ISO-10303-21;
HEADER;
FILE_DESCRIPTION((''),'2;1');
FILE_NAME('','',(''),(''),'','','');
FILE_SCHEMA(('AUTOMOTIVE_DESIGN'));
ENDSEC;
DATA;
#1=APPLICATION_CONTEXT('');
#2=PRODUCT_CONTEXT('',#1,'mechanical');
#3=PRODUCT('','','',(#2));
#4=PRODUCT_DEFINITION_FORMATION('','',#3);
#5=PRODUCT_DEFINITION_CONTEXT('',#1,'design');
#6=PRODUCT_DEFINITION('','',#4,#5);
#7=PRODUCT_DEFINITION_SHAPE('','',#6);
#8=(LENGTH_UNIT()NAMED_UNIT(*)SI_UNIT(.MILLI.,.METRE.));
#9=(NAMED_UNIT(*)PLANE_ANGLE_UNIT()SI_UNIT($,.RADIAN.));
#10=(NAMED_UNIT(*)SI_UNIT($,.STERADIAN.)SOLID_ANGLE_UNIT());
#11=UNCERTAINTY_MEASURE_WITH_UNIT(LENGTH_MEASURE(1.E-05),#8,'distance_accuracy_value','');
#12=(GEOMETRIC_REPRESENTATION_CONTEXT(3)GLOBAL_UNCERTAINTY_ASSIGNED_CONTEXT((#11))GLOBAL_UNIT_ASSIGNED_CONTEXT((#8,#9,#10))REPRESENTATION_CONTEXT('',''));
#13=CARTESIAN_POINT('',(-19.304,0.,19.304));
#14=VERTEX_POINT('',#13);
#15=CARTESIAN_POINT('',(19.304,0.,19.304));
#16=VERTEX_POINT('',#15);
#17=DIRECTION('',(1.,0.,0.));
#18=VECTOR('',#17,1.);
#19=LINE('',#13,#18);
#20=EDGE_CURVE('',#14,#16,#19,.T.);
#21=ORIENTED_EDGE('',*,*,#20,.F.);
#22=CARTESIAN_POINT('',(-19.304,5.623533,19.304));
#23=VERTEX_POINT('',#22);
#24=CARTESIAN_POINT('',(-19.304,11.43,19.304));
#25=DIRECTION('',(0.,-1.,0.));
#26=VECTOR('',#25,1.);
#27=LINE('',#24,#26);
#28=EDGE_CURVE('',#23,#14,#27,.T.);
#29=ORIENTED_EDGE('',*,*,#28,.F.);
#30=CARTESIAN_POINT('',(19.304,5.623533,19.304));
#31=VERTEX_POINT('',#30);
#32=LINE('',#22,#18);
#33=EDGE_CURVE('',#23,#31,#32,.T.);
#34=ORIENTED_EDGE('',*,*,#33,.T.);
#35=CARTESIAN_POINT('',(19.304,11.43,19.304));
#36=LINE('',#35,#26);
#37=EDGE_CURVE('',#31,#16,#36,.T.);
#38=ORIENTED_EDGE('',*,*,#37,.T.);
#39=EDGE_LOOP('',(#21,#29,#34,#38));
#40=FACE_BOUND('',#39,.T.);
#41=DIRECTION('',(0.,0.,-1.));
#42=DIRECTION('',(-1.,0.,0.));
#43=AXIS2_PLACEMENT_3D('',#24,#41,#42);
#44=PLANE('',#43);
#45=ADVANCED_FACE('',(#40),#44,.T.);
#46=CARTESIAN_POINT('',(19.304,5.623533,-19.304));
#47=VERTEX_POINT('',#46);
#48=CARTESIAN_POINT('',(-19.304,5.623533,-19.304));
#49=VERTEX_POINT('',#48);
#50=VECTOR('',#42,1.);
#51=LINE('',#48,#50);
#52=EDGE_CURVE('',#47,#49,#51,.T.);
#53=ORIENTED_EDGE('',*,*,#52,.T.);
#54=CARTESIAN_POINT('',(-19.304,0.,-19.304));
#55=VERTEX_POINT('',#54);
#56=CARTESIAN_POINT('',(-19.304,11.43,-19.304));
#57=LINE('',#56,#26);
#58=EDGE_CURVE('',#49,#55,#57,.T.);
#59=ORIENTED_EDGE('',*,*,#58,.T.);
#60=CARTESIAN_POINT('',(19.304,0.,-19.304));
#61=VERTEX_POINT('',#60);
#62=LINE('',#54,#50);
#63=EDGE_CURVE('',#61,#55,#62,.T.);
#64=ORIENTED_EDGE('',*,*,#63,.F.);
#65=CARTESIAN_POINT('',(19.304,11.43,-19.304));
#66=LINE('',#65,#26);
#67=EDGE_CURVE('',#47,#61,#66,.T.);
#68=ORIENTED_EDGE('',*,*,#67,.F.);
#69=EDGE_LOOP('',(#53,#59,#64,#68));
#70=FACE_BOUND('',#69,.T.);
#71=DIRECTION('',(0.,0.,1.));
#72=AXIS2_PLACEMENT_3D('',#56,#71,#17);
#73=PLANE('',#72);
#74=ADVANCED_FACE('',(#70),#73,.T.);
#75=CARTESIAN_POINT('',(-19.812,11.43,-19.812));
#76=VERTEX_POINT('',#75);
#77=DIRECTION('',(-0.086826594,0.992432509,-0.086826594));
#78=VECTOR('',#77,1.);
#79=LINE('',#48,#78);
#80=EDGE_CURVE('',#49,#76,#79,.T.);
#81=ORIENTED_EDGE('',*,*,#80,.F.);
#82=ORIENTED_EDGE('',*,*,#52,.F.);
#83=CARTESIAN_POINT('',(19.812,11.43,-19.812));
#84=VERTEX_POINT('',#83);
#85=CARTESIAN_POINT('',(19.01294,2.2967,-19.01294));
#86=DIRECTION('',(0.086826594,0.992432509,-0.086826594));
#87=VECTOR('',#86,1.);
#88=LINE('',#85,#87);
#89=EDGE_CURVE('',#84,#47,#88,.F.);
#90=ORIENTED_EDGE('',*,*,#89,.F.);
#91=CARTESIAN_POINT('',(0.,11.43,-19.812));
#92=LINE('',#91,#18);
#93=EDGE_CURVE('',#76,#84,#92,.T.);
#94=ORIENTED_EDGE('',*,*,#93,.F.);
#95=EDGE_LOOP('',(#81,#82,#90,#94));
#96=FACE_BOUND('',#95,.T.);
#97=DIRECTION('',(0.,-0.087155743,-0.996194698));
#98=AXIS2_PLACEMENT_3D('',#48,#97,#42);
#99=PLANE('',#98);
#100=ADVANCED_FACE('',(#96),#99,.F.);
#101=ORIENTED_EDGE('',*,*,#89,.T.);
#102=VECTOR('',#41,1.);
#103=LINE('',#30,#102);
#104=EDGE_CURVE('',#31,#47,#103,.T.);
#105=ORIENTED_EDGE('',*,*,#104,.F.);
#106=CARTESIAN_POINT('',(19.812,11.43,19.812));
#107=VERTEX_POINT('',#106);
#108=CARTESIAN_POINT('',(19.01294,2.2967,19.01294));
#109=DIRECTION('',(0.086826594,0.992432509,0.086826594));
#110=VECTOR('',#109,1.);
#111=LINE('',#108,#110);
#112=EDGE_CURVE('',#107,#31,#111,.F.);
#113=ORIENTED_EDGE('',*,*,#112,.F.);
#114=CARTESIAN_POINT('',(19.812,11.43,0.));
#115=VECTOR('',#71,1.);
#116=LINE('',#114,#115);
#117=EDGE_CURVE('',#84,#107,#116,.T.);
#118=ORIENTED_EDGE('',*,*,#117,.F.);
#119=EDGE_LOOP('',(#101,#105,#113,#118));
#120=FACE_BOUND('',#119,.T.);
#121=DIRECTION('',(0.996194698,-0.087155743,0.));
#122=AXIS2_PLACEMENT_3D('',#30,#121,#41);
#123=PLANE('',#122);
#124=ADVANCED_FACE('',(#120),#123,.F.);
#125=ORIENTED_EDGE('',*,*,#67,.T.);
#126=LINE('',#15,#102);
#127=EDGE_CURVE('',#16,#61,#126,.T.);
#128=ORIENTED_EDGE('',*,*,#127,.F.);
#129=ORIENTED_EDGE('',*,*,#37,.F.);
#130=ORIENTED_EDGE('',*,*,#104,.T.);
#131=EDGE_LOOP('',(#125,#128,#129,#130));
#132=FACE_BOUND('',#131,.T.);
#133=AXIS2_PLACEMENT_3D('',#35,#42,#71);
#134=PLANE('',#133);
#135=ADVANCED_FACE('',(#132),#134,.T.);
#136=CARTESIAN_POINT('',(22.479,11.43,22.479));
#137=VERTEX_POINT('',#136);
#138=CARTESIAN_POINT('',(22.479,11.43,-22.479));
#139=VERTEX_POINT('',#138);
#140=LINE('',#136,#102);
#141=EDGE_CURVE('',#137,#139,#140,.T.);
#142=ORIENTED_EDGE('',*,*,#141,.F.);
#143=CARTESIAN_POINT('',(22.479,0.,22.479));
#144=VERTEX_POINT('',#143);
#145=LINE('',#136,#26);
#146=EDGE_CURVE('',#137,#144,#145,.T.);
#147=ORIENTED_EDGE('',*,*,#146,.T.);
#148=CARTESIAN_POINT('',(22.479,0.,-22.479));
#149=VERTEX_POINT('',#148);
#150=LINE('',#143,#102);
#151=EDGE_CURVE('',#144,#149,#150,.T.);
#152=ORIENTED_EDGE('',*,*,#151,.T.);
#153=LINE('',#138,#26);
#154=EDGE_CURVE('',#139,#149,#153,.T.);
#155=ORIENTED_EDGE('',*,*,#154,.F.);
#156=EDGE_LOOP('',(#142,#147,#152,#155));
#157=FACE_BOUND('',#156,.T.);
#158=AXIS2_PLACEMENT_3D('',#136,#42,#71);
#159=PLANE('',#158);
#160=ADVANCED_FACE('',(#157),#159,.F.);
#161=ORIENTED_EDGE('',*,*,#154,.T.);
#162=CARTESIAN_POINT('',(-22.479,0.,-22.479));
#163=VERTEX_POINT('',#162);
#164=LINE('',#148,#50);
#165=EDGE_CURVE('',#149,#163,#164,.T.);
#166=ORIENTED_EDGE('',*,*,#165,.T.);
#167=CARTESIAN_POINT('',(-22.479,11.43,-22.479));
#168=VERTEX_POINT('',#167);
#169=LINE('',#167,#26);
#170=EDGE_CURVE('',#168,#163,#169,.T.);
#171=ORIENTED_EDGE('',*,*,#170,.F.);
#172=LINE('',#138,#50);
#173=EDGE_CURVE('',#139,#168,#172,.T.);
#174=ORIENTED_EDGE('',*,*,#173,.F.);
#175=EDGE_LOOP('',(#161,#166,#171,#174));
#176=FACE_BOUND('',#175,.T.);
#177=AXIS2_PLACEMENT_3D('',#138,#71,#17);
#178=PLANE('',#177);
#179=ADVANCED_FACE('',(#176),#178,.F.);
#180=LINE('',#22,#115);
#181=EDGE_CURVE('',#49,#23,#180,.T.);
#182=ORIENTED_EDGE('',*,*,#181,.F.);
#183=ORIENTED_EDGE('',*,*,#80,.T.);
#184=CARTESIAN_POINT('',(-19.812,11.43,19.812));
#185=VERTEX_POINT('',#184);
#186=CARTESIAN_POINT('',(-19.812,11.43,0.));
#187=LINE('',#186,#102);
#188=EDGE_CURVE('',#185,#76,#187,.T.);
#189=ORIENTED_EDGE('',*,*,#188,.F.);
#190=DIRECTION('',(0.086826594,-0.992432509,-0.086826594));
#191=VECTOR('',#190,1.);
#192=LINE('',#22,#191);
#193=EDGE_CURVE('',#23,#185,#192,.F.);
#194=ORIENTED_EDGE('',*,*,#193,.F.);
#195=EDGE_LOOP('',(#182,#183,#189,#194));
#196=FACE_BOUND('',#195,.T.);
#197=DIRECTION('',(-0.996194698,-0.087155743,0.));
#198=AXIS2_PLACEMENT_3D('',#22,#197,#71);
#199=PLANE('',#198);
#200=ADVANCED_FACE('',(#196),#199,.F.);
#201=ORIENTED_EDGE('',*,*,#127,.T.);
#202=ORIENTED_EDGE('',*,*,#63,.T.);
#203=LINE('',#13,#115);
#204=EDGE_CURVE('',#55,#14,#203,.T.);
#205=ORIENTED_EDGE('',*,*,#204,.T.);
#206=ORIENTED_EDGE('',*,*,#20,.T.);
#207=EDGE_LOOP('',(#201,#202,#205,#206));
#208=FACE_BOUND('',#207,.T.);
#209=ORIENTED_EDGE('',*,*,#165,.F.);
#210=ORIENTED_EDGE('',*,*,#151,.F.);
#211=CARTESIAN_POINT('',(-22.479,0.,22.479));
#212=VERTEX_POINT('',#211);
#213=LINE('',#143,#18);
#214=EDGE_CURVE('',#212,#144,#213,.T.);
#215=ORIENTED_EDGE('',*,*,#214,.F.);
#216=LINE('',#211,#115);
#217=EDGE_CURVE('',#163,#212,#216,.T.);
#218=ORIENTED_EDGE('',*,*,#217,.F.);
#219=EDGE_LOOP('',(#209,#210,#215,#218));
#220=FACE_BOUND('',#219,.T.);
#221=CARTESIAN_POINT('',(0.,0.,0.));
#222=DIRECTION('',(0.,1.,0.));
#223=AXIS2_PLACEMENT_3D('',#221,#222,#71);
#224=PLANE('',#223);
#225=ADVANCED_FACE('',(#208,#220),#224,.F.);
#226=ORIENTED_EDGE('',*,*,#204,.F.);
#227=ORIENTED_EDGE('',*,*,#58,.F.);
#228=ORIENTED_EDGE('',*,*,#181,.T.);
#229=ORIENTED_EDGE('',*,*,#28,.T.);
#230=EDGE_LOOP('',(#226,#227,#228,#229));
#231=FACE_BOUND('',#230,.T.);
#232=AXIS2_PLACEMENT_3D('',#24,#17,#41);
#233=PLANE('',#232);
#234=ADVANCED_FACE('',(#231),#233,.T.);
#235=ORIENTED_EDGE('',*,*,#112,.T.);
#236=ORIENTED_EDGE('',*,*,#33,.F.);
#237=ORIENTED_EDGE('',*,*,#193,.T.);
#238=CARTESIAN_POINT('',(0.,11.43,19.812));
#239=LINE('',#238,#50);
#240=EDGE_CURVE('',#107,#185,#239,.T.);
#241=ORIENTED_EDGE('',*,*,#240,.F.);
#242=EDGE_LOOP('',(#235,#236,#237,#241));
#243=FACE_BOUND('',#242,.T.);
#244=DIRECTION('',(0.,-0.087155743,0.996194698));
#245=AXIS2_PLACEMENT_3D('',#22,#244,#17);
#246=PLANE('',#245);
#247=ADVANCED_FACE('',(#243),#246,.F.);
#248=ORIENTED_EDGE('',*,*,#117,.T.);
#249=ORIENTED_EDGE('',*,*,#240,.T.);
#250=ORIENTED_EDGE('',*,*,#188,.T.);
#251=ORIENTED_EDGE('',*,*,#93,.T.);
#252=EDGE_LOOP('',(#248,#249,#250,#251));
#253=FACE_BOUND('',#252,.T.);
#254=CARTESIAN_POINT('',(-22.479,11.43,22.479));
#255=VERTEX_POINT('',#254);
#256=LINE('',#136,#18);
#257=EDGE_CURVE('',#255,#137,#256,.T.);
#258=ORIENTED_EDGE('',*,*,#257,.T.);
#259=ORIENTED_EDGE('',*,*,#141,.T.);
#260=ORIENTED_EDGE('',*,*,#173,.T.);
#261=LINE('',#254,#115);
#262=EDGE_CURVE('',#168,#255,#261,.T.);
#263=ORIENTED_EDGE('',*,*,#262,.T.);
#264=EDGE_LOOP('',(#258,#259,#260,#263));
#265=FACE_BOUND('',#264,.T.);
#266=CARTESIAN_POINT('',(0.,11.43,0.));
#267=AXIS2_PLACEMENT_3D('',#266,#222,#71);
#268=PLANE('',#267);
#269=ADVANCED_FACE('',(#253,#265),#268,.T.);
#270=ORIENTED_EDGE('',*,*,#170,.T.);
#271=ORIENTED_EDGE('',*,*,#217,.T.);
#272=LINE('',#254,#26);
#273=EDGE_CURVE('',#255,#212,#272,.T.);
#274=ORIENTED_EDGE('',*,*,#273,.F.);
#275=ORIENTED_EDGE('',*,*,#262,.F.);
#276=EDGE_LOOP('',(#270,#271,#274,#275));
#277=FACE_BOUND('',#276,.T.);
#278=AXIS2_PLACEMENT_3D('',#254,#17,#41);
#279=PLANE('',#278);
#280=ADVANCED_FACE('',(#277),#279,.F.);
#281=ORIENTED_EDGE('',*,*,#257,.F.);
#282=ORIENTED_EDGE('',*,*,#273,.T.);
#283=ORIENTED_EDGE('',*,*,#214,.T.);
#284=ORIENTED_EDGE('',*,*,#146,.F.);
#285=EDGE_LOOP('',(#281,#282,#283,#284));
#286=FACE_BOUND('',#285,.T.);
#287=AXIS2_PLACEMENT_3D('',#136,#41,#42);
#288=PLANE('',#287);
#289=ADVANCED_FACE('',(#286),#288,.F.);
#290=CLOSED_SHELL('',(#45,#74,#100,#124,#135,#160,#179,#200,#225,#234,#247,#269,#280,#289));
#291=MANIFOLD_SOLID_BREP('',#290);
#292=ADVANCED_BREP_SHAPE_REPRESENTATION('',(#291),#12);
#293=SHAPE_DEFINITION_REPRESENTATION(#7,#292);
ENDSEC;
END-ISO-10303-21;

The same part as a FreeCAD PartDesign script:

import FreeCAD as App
import Part
import Sketcher

V = App.Vector
Q = App.Units.Quantity


def edges_at(feature, points):
    """Names of the edges that pass closest to the given points."""
    edges = feature.Shape.Edges
    near = lambda p: min(range(len(edges)), key=lambda i: edges[i].distToShape(Part.Vertex(*p))[0])
    return sorted({f"Edge{near(p) + 1}" for p in points})


def add_polygon(sketch, points):
    """Adds a closed chain of lines whose ends are joined by coincident constraints."""
    first, n = sketch.GeometryCount, len(points)
    for a, b in zip(points, points[1:] + points[:1]):
        sketch.addGeometry(Part.LineSegment(App.Vector(*a, 0), App.Vector(*b, 0)), False)
    for i in range(n):
        sketch.addConstraint(Sketcher.Constraint("Coincident", first + i, 2, first + (i + 1) % n, 1))

doc = App.newDocument("Part")
body = doc.addObject("PartDesign::Body", "Body")

sketch1 = body.newObject("Sketcher::SketchObject", "Sketch")
sketch1.AttachmentSupport = (doc.getObject("XZ_Plane"), [""])
sketch1.MapMode = "FlatFace"
add_polygon(sketch1, [(-22, -22), (-22, 22), (22, 22), (22, -22)])
add_polygon(sketch1, [(19, 19), (-19, 19), (-19, -19), (19, -19)])
sketch1.addConstraint(Sketcher.Constraint("Vertical", 0))
sketch1.addConstraint(Sketcher.Constraint("Horizontal", 1))
sketch1.addConstraint(Sketcher.Constraint("Vertical", 2))
sketch1.addConstraint(Sketcher.Constraint("Horizontal", 3))
sketch1.addConstraint(Sketcher.Constraint("Horizontal", 4))
sketch1.addConstraint(Sketcher.Constraint("Vertical", 5))
sketch1.addConstraint(Sketcher.Constraint("Horizontal", 6))
sketch1.addConstraint(Sketcher.Constraint("Vertical", 7))
sketch1.addConstraint(Sketcher.Constraint("Symmetric", 0, 2, 2, 2, -1, 1))
sketch1.addConstraint(Sketcher.Constraint("Symmetric", 4, 2, 6, 2, -1, 1))
sketch1.addConstraint(Sketcher.Constraint("Equal", 3, 0))
sketch1.addConstraint(Sketcher.Constraint("Equal", 6, 5))
sketch1.addConstraint(Sketcher.Constraint("DistanceX", 1, 1, 1, 2, Q("1.77 in")))
sketch1.addConstraint(Sketcher.Constraint("DistanceX", 4, 2, 4, 1, Q("1.52 in")))
pad1 = body.newObject("PartDesign::Pad", "Pad")
pad1.Profile = sketch1
pad1.Length = Q("0.45 in")
pad1.Reversed = True
doc.recompute()

chamfer = body.newObject("PartDesign::Chamfer", "Chamfer")
chamfer.Base = (pad1, edges_at(pad1, [
    (19.304, 11.43, 0),
    (0, 11.43, -19.304),
    (-19.304, 11.43, 0),
    (0, 11.43, 19.304),
]))
chamfer.ChamferType = "Two distances"
chamfer.Size = Q("0.02 in")
chamfer.Size2 = 5.806467
chamfer.FlipDirection = True

doc.recompute()
